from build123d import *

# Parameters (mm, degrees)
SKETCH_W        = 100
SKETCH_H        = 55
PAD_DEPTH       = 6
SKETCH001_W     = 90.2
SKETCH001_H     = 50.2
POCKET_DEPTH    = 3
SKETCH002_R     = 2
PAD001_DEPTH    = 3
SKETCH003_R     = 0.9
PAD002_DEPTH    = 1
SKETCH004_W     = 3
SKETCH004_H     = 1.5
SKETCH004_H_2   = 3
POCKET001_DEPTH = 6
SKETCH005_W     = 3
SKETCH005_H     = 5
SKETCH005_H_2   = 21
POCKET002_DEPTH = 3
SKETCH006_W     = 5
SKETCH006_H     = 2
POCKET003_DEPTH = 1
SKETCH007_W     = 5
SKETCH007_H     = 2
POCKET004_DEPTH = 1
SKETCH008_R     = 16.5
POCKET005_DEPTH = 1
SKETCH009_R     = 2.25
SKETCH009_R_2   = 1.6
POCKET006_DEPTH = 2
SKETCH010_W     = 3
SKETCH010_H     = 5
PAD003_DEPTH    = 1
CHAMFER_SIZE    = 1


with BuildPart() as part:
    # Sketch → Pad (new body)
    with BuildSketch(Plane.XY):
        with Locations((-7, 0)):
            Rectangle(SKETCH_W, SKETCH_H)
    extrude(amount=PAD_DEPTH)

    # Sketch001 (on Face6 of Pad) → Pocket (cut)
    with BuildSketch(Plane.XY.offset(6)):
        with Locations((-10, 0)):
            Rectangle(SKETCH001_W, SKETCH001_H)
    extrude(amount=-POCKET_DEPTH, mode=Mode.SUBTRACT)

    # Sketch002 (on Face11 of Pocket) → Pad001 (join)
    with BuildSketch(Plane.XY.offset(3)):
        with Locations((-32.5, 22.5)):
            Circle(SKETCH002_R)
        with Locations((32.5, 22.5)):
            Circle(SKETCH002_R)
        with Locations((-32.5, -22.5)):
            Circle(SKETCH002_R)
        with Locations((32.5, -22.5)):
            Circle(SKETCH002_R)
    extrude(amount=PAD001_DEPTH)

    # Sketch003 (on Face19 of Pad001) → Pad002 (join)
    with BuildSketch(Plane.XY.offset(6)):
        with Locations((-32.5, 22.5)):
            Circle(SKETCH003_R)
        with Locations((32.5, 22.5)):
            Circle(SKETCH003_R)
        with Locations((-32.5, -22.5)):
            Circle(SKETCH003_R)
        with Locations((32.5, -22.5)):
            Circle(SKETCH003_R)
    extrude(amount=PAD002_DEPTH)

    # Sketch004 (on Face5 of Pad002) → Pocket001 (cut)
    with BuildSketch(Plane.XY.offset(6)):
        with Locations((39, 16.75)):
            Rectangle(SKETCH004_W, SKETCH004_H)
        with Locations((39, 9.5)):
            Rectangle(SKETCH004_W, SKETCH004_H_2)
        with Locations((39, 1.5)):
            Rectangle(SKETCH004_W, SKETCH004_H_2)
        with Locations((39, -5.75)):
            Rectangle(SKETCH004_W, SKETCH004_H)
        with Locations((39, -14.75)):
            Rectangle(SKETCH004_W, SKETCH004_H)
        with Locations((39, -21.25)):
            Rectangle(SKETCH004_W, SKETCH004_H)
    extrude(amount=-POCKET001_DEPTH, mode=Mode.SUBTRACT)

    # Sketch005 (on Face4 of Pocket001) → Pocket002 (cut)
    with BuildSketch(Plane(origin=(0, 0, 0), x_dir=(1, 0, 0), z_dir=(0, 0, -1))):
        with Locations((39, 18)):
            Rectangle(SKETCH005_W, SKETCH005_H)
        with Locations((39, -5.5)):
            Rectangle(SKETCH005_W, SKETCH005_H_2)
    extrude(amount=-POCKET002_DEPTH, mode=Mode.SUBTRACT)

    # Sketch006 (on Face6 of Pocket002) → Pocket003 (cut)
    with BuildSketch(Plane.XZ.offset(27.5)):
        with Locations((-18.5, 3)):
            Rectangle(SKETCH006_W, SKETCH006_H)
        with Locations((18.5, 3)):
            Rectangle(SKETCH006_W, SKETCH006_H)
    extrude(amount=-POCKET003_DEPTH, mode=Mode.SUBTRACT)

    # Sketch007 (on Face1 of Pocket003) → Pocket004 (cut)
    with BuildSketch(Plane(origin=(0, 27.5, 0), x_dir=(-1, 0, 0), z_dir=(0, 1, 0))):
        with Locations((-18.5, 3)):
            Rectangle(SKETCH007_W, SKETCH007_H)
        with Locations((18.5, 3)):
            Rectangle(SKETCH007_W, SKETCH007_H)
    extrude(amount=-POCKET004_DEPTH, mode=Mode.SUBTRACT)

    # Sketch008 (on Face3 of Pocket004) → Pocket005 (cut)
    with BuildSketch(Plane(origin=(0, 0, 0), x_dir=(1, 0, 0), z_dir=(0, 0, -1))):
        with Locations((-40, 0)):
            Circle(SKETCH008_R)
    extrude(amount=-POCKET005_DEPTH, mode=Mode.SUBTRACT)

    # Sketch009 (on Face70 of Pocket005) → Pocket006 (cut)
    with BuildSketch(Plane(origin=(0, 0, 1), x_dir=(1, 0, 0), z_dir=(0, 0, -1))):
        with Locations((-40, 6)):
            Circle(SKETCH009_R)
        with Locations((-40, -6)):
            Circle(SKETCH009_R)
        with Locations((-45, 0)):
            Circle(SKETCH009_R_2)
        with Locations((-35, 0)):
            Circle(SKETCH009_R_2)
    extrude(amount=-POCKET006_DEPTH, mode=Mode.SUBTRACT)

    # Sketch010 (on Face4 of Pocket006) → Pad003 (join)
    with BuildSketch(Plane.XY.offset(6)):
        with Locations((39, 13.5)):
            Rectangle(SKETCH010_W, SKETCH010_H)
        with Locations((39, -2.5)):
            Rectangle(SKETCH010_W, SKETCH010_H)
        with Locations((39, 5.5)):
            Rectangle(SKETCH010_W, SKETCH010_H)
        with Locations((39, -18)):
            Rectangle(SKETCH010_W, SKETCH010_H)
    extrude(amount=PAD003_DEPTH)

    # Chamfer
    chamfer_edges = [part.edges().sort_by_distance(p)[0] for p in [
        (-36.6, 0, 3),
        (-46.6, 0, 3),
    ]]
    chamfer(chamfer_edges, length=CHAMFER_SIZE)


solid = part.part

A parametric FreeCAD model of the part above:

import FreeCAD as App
import Part
import Sketcher


def edges_at(feature, points):
    """Names of the edges that pass closest to the given points."""
    edges = feature.Shape.Edges
    near = lambda p: min(range(len(edges)), key=lambda i: edges[i].distToShape(Part.Vertex(*p))[0])
    return sorted({f"Edge{near(p) + 1}" for p in points})


def add_polygon(sketch, points):
    """Adds a closed chain of lines whose ends are joined by coincident constraints."""
    first, n = sketch.GeometryCount, len(points)
    for a, b in zip(points, points[1:] + points[:1]):
        sketch.addGeometry(Part.LineSegment(App.Vector(*a, 0), App.Vector(*b, 0)), False)
    for i in range(n):
        sketch.addConstraint(Sketcher.Constraint("Coincident", first + i, 2, first + (i + 1) % n, 1))

doc = App.newDocument("Part")
body = doc.addObject("PartDesign::Body", "Body")

sketch1 = body.newObject("Sketcher::SketchObject", "Sketch")
sketch1.AttachmentSupport = (doc.getObject("XY_Plane"), [""])
sketch1.MapMode = "FlatFace"
add_polygon(sketch1, [(-57, 27.5), (-57, -27.5), (43, -27.5), (43, 27.5)])
sketch1.addConstraint([
    Sketcher.Constraint("Vertical", 0),
    Sketcher.Constraint("Horizontal", 1),
    Sketcher.Constraint("Vertical", 2),
    Sketcher.Constraint("Horizontal", 3),
    Sketcher.Constraint("DistanceX", 1, 1, 1, 2, 100.0),
    Sketcher.Constraint("DistanceY", 0, 2, 0, 1, 55.0),
    Sketcher.Constraint("DistanceX", 0, 2, -1, 1, 57.0),
    Sketcher.Constraint("DistanceY", 0, 2, -1, 1, 27.5),
])
pad1 = body.newObject("PartDesign::Pad", "Pad")
pad1.Profile = sketch1
pad1.Length = 6

sketch2 = body.newObject("Sketcher::SketchObject", "Sketch001")
sketch2.AttachmentSupport = (doc.getObject("XY_Plane"), [""])
sketch2.MapMode = "FlatFace"
sketch2.AttachmentOffset = App.Placement(App.Vector(0, 0, 6), App.Rotation())
add_polygon(sketch2, [(-55.1, 25.1), (-55.1, -25.1), (35.1, -25.1), (35.1, 25.1)])
sketch2.addConstraint([
    Sketcher.Constraint("Vertical", 0),
    Sketcher.Constraint("Horizontal", 1),
    Sketcher.Constraint("Vertical", 2),
    Sketcher.Constraint("Horizontal", 3),
    Sketcher.Constraint("DistanceX", 1, 1, 1, 2, 90.2),
    Sketcher.Constraint("DistanceY", 0, 2, 0, 1, 50.2),
    Sketcher.Constraint("DistanceX", 0, 2, -1, 1, 55.1),
    Sketcher.Constraint("DistanceY", 0, 2, -1, 1, 25.1),
])
pocket1 = body.newObject("PartDesign::Pocket", "Pocket")
pocket1.Profile = sketch2
pocket1.Length = 3

sketch3 = body.newObject("Sketcher::SketchObject", "Sketch002")
sketch3.AttachmentSupport = (doc.getObject("XY_Plane"), [""])
sketch3.MapMode = "FlatFace"
sketch3.AttachmentOffset = App.Placement(App.Vector(0, 0, 3), App.Rotation())
sketch3.addGeometry([
    Part.Circle(App.Vector(-32.5, 22.5, 0), App.Vector(0, 0, 1), 2),
    Part.Circle(App.Vector(32.5, 22.5, 0), App.Vector(0, 0, 1), 2),
    Part.Circle(App.Vector(-32.5, -22.5, 0), App.Vector(0, 0, 1), 2),
    Part.Circle(App.Vector(32.5, -22.5, 0), App.Vector(0, 0, 1), 2),
], False)
sketch3.addConstraint([
    Sketcher.Constraint("Equal", 0, 1),
    Sketcher.Constraint("Equal", 1, 2),
    Sketcher.Constraint("Equal", 2, 3),
    Sketcher.Constraint("Symmetric", 1, 3, 2, 3, -1, 1),
    Sketcher.Constraint("Symmetric", 0, 3, 3, 3, -1, 1),
    Sketcher.Constraint("Symmetric", 0, 3, 1, 3, -2),
    Sketcher.Constraint("Diameter", 0, 4.0),
    Sketcher.Constraint("DistanceX", 0, 3, 1, 3, 65.0),
    Sketcher.Constraint("DistanceY", 2, 3, 0, 3, 45.0),
])
pad2 = body.newObject("PartDesign::Pad", "Pad001")
pad2.Profile = sketch3
pad2.Length = 3

sketch4 = body.newObject("Sketcher::SketchObject", "Sketch003")
sketch4.AttachmentSupport = (doc.getObject("XY_Plane"), [""])
sketch4.MapMode = "FlatFace"
sketch4.AttachmentOffset = App.Placement(App.Vector(0, 0, 6), App.Rotation())
sketch4.addGeometry([
    Part.Circle(App.Vector(-32.5, 22.5, 0), App.Vector(0, 0, 1), 0.9),
    Part.Circle(App.Vector(32.5, 22.5, 0), App.Vector(0, 0, 1), 0.9),
    Part.Circle(App.Vector(-32.5, -22.5, 0), App.Vector(0, 0, 1), 0.9),
    Part.Circle(App.Vector(32.5, -22.5, 0), App.Vector(0, 0, 1), 0.9),
], False)
sketch4.addConstraint([
    Sketcher.Constraint("Equal", 0, 1),
    Sketcher.Constraint("Equal", 1, 2),
    Sketcher.Constraint("Equal", 2, 3),
    Sketcher.Constraint("Symmetric", 1, 3, 2, 3, -1, 1),
    Sketcher.Constraint("Symmetric", 0, 3, 3, 3, -1, 1),
    Sketcher.Constraint("Symmetric", 0, 3, 1, 3, -2),
    Sketcher.Constraint("Diameter", 0, 1.8),
    Sketcher.Constraint("DistanceX", 0, 3, 1, 3, 65.0),
    Sketcher.Constraint("DistanceY", 2, 3, 0, 3, 45.0),
])
pad3 = body.newObject("PartDesign::Pad", "Pad002")
pad3.Profile = sketch4
pad3.Length = 1

sketch5 = body.newObject("Sketcher::SketchObject", "Sketch004")
sketch5.AttachmentSupport = (doc.getObject("XY_Plane"), [""])
sketch5.MapMode = "FlatFace"
sketch5.AttachmentOffset = App.Placement(App.Vector(0, 0, 6), App.Rotation())
add_polygon(sketch5, [(37.5, 17.5), (37.5, 16), (40.5, 16), (40.5, 17.5)])
add_polygon(sketch5, [(37.5, 11), (37.5, 8), (40.5, 8), (40.5, 11)])
add_polygon(sketch5, [(37.5, 3), (37.5, 0), (40.5, 0), (40.5, 3)])
add_polygon(sketch5, [(37.5, -5), (37.5, -6.5), (40.5, -6.5), (40.5, -5)])
add_polygon(sketch5, [(37.5, -14), (37.5, -15.5), (40.5, -15.5), (40.5, -14)])
add_polygon(sketch5, [(37.5, -20.5), (37.5, -22), (40.5, -22), (40.5, -20.5)])
sketch5.addConstraint([
    Sketcher.Constraint("Vertical", 0),
    Sketcher.Constraint("Horizontal", 1),
    Sketcher.Constraint("Vertical", 2),
    Sketcher.Constraint("Horizontal", 3),
    Sketcher.Constraint("Vertical", 4),
    Sketcher.Constraint("Horizontal", 5),
    Sketcher.Constraint("Vertical", 6),
    Sketcher.Constraint("Horizontal", 7),
    Sketcher.Constraint("Vertical", 8),
    Sketcher.Constraint("Horizontal", 9),
    Sketcher.Constraint("Vertical", 10),
    Sketcher.Constraint("Horizontal", 11),
    Sketcher.Constraint("Vertical", 12),
    Sketcher.Constraint("Horizontal", 13),
    Sketcher.Constraint("Vertical", 14),
    Sketcher.Constraint("Horizontal", 15),
    Sketcher.Constraint("Vertical", 16),
    Sketcher.Constraint("Horizontal", 17),
    Sketcher.Constraint("Vertical", 18),
    Sketcher.Constraint("Horizontal", 19),
    Sketcher.Constraint("Vertical", 20),
    Sketcher.Constraint("Horizontal", 21),
    Sketcher.Constraint("Vertical", 22),
    Sketcher.Constraint("Horizontal", 23),
    Sketcher.Constraint("PointOnObject", 8, 2, -1),
    Sketcher.Constraint("Vertical", 3, 2, 4, 2),
    Sketcher.Constraint("Vertical", 2, 2, 5, 2),
    Sketcher.Constraint("Vertical", 7, 2, 8, 2),
    Sketcher.Constraint("Vertical", 6, 2, 9, 2),
    Sketcher.Constraint("Vertical", 11, 2, 12, 2),
    Sketcher.Constraint("Vertical", 10, 2, 13, 2),
    Sketcher.Constraint("Vertical", 15, 2, 16, 2),
    Sketcher.Constraint("Vertical", 14, 2, 17, 2),
    Sketcher.Constraint("Vertical", 19, 2, 20, 2),
    Sketcher.Constraint("Vertical", 18, 2, 21, 2),
    Sketcher.Constraint("Equal", 23, 4),
    Sketcher.Constraint("Equal", 6, 8),
    Sketcher.Constraint("Equal", 2, 12),
    Sketcher.Constraint("Equal", 14, 16),
    Sketcher.Constraint("Equal", 18, 20),
    Sketcher.Constraint("DistanceX", 1, 1, 1, 2, 3.0),
    Sketcher.Constraint("DistanceY", 0, 2, 0, 1, 1.5),
    Sketcher.Constraint("DistanceY", -1, 1, 0, 2, 16.0),
    Sketcher.Constraint("DistanceY", -1, 1, 4, 2, 8.0),
    Sketcher.Constraint("DistanceY", 14, 2, -1, 1, 5.0),
    Sketcher.Constraint("DistanceY", 18, 2, -1, 1, 14.0),
    Sketcher.Constraint("DistanceY", 20, 2, -1, 1, 22.0),
    Sketcher.Constraint("DistanceX", -1, 1, 0, 2, 37.5),
])
pocket2 = body.newObject("PartDesign::Pocket", "Pocket001")
pocket2.Profile = sketch5
pocket2.Length = 6

sketch6 = body.newObject("Sketcher::SketchObject", "Sketch005")
sketch6.AttachmentSupport = (doc.getObject("XY_Plane"), [""])
sketch6.MapMode = "FlatFace"
add_polygon(sketch6, [(37.5, -20.5), (37.5, -15.5), (40.5, -15.5), (40.5, -20.5)])
add_polygon(sketch6, [(37.5, -5), (37.5, 16), (40.5, 16), (40.5, -5)])
sketch6.addConstraint([
    Sketcher.Constraint("Vertical", 0),
    Sketcher.Constraint("Horizontal", 1),
    Sketcher.Constraint("Vertical", 2),
    Sketcher.Constraint("Horizontal", 3),
    Sketcher.Constraint("Vertical", 4),
    Sketcher.Constraint("Horizontal", 5),
    Sketcher.Constraint("Vertical", 6),
    Sketcher.Constraint("Horizontal", 7),
    Sketcher.Constraint("Vertical", 3, 2, 4, 2),
    Sketcher.Constraint("Vertical", 2, 2, 5, 2),
    Sketcher.Constraint("DistanceX", 1, 1, 1, 2, 3.0),
    Sketcher.Constraint("DistanceY", 0, 1, 0, 2, 5.0),
    Sketcher.Constraint("DistanceY", 4, 1, 4, 2, 21.0),
    Sketcher.Constraint("DistanceY", -1, 1, 4, 2, 16.0),
    Sketcher.Constraint("DistanceX", -1, 1, 0, 2, 37.5),
    Sketcher.Constraint("DistanceY", 0, 2, -1, 1, 15.5),
])
pocket3 = body.newObject("PartDesign::Pocket", "Pocket002")
pocket3.Profile = sketch6
pocket3.Length = 3
pocket3.Reversed = True

sketch7 = body.newObject("Sketcher::SketchObject", "Sketch006")
sketch7.AttachmentSupport = (doc.getObject("XZ_Plane"), [""])
sketch7.MapMode = "FlatFace"
sketch7.AttachmentOffset = App.Placement(App.Vector(0, 0, 27.5), App.Rotation())
add_polygon(sketch7, [(-21, 4), (-21, 2), (-16, 2), (-16, 4)])
add_polygon(sketch7, [(16, 4), (16, 2), (21, 2), (21, 4)])
sketch7.addConstraint([
    Sketcher.Constraint("Vertical", 0),
    Sketcher.Constraint("Horizontal", 1),
    Sketcher.Constraint("Vertical", 2),
    Sketcher.Constraint("Horizontal", 3),
    Sketcher.Constraint("Vertical", 4),
    Sketcher.Constraint("Horizontal", 5),
    Sketcher.Constraint("Vertical", 6),
    Sketcher.Constraint("Horizontal", 7),
    Sketcher.Constraint("Symmetric", 1, 2, 4, 2, -2),
    Sketcher.Constraint("Symmetric", 3, 2, 6, 2, -2),
    Sketcher.Constraint("DistanceX", 1, 1, 1, 2, 5.0),
    Sketcher.Constraint("DistanceY", 0, 2, 0, 1, 2.0),
    Sketcher.Constraint("DistanceX", 0, 2, -1, 1, 21.0),
    Sketcher.Constraint("DistanceY", -1, 1, 0, 2, 2.0),
])
pocket4 = body.newObject("PartDesign::Pocket", "Pocket003")
pocket4.Profile = sketch7
pocket4.Length = 1

sketch8 = body.newObject("Sketcher::SketchObject", "Sketch007")
sketch8.AttachmentSupport = (doc.getObject("XZ_Plane"), [""])
sketch8.MapMode = "FlatFace"
sketch8.AttachmentOffset = App.Placement(App.Vector(0, 0, -27.5), App.Rotation())
add_polygon(sketch8, [(21, 4), (21, 2), (16, 2), (16, 4)])
add_polygon(sketch8, [(-16, 4), (-16, 2), (-21, 2), (-21, 4)])
sketch8.addConstraint([
    Sketcher.Constraint("Vertical", 0),
    Sketcher.Constraint("Horizontal", 1),
    Sketcher.Constraint("Vertical", 2),
    Sketcher.Constraint("Horizontal", 3),
    Sketcher.Constraint("Vertical", 4),
    Sketcher.Constraint("Horizontal", 5),
    Sketcher.Constraint("Vertical", 6),
    Sketcher.Constraint("Horizontal", 7),
    Sketcher.Constraint("Symmetric", 1, 2, 4, 2, -2),
    Sketcher.Constraint("Symmetric", 3, 2, 6, 2, -2),
    Sketcher.Constraint("DistanceX", 1, 2, 1, 1, 5.0),
    Sketcher.Constraint("DistanceY", 0, 2, 0, 1, 2.0),
    Sketcher.Constraint("DistanceX", -1, 1, 0, 2, 21.0),
    Sketcher.Constraint("DistanceY", -1, 1, 0, 2, 2.0),
])
pocket5 = body.newObject("PartDesign::Pocket", "Pocket004")
pocket5.Profile = sketch8
pocket5.Length = 1
pocket5.Reversed = True

sketch9 = body.newObject("Sketcher::SketchObject", "Sketch008")
sketch9.AttachmentSupport = (doc.getObject("XY_Plane"), [""])
sketch9.MapMode = "FlatFace"
sketch9.addGeometry(Part.Circle(App.Vector(-40, 0, 0), App.Vector(0, 0, 1), 16.5), False)
sketch9.addConstraint([
    Sketcher.Constraint("PointOnObject", 0, 3, -1),
    Sketcher.Constraint("Diameter", 0, 33.0),
    Sketcher.Constraint("DistanceX", 0, 3, -1, 1, 40.0),
])
pocket6 = body.newObject("PartDesign::Pocket", "Pocket005")
pocket6.Profile = sketch9
pocket6.Length = 1
pocket6.Reversed = True

sketch10 = body.newObject("Sketcher::SketchObject", "Sketch009")
sketch10.AttachmentSupport = (doc.getObject("XY_Plane"), [""])
sketch10.MapMode = "FlatFace"
sketch10.AttachmentOffset = App.Placement(App.Vector(0, 0, 1), App.Rotation())
sketch10.addGeometry([
    Part.Circle(App.Vector(-40, -6, 0), App.Vector(0, 0, 1), 2.25),
    Part.Circle(App.Vector(-40, 6, 0), App.Vector(0, 0, 1), 2.25),
    Part.Circle(App.Vector(-45, 0, 0), App.Vector(0, 0, 1), 1.6),
    Part.Circle(App.Vector(-35, 0, 0), App.Vector(0, 0, 1), 1.6),
], False)
sketch10.addConstraint([
    Sketcher.Constraint("Equal", 0, 1),
    Sketcher.Constraint("Equal", 2, 3),
    Sketcher.Constraint("Symmetric", 0, 3, 1, 3, -1),
    Sketcher.Constraint("PointOnObject", 2, 3, -1),
    Sketcher.Constraint("PointOnObject", 3, 3, -1),
    Sketcher.Constraint("Diameter", 0, 4.5),
    Sketcher.Constraint("Diameter", 2, 3.2),
    Sketcher.Constraint("DistanceX", 0, 3, -1, 1, 40.0),
    Sketcher.Constraint("DistanceY", 0, 3, -1, 1, 6.0),
    Sketcher.Constraint("DistanceX", 2, 3, -1, 1, 45.0),
    Sketcher.Constraint("DistanceX", 3, 3, -1, 1, 35.0),
])
pocket7 = body.newObject("PartDesign::Pocket", "Pocket006")
pocket7.Profile = sketch10
pocket7.Length = 2
pocket7.Reversed = True

sketch11 = body.newObject("Sketcher::SketchObject", "Sketch010")
sketch11.AttachmentSupport = (doc.getObject("XY_Plane"), [""])
sketch11.MapMode = "FlatFace"
sketch11.AttachmentOffset = App.Placement(App.Vector(0, 0, 6), App.Rotation())
add_polygon(sketch11, [(37.5, 16), (37.5, 11), (40.5, 11), (40.5, 16)])
add_polygon(sketch11, [(37.5, 0), (37.5, -5), (40.5, -5), (40.5, 0)])
add_polygon(sketch11, [(37.5, 8), (37.5, 3), (40.5, 3), (40.5, 8)])
add_polygon(sketch11, [(37.5, -15.5), (37.5, -20.5), (40.5, -20.5), (40.5, -15.5)])
sketch11.addConstraint([
    Sketcher.Constraint("Vertical", 0),
    Sketcher.Constraint("Horizontal", 1),
    Sketcher.Constraint("Vertical", 2),
    Sketcher.Constraint("Horizontal", 3),
    Sketcher.Constraint("Vertical", 4),
    Sketcher.Constraint("Horizontal", 5),
    Sketcher.Constraint("Vertical", 6),
    Sketcher.Constraint("Horizontal", 7),
    Sketcher.Constraint("Vertical", 8),
    Sketcher.Constraint("Horizontal", 9),
    Sketcher.Constraint("Vertical", 10),
    Sketcher.Constraint("Horizontal", 11),
    Sketcher.Constraint("Vertical", 12),
    Sketcher.Constraint("Horizontal", 13),
    Sketcher.Constraint("Vertical", 14),
    Sketcher.Constraint("Horizontal", 15),
    Sketcher.Constraint("PointOnObject", 6, 2, -1),
    Sketcher.Constraint("Vertical", 3, 2, 4, 2),
    Sketcher.Constraint("Vertical", 2, 2, 5, 2),
    Sketcher.Constraint("Vertical", 7, 2, 8, 2),
    Sketcher.Constraint("Vertical", 6, 2, 9, 2),
    Sketcher.Constraint("Vertical", 11, 2, 12, 2),
    Sketcher.Constraint("Vertical", 10, 2, 13, 2),
    Sketcher.Constraint("Equal", 2, 4),
    Sketcher.Constraint("Equal", 6, 8),
    Sketcher.Constraint("Equal", 10, 12),
    Sketcher.Constraint("DistanceX", 1, 1, 1, 2, 3.0),
    Sketcher.Constraint("DistanceY", 0, 2, 0, 1, 5.0),
    Sketcher.Constraint("DistanceY", -1, 1, 0, 2, 11.0),
    Sketcher.Constraint("DistanceY", -1, 1, 8, 2, 3.0),
    Sketcher.Constraint("DistanceX", -1, 1, 0, 2, 37.5),
    Sketcher.Constraint("DistanceY", 12, 2, -1, 1, 20.5),
])
pad4 = body.newObject("PartDesign::Pad", "Pad003")
pad4.Profile = sketch11
pad4.Length = 1
doc.recompute()

chamfer = body.newObject("PartDesign::Chamfer", "Chamfer")
chamfer.Base = (pad4, edges_at(pad4, [(-36.6, 0, 3), (-46.6, 0, 3)]))
chamfer.Size = 1

doc.recompute()
